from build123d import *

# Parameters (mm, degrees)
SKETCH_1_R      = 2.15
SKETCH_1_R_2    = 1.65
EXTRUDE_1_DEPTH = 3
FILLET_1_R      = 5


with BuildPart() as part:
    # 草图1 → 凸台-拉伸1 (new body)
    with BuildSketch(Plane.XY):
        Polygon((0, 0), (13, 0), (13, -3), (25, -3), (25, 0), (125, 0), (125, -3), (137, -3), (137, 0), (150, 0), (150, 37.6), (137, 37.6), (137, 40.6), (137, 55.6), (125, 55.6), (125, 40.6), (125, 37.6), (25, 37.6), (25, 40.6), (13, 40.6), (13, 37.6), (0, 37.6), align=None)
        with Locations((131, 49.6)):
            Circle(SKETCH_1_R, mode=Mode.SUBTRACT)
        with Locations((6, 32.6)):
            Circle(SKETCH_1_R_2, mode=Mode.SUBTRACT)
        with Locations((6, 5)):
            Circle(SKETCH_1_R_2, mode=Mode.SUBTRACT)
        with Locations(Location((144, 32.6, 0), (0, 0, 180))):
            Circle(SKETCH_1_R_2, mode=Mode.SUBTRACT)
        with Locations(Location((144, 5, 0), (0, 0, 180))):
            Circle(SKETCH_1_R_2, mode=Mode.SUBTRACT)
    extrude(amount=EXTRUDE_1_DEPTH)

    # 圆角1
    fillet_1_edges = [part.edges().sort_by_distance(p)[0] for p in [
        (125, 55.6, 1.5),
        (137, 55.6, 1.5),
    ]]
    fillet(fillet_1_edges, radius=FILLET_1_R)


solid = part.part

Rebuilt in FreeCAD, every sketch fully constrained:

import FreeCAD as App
import Part
import Sketcher

V = App.Vector


def edges_at(feature, points):
    """Names of the edges that pass closest to the given points."""
    edges = feature.Shape.Edges
    near = lambda p: min(range(len(edges)), key=lambda i: edges[i].distToShape(Part.Vertex(*p))[0])
    return sorted({f"Edge{near(p) + 1}" for p in points})

doc = App.newDocument("Part")
body = doc.addObject("PartDesign::Body", "Body")

sketch1 = body.newObject("Sketcher::SketchObject", "Sketch")
sketch1.AttachmentSupport = (doc.getObject("XY_Plane"), [""])
sketch1.MapMode = "FlatFace"
sketch1.addGeometry([
    Part.LineSegment(V(0, 0, 0), V(13, 0, 0)),
    Part.LineSegment(V(13, 0, 0), V(13, -3, 0)),
    Part.LineSegment(V(13, -3, 0), V(25, -3, 0)),
    Part.LineSegment(V(25, -3, 0), V(25, 0, 0)),
    Part.LineSegment(V(25, 0, 0), V(125, 0, 0)),
    Part.LineSegment(V(125, 0, 0), V(125, -3, 0)),
    Part.LineSegment(V(125, -3, 0), V(137, -3, 0)),
    Part.LineSegment(V(137, -3, 0), V(137, 0, 0)),
    Part.LineSegment(V(137, 0, 0), V(150, 0, 0)),
    Part.LineSegment(V(150, 0, 0), V(150, 37.6, 0)),
    Part.LineSegment(V(150, 37.6, 0), V(137, 37.6, 0)),
    Part.LineSegment(V(137, 37.6, 0), V(137, 55.6, 0)),
    Part.LineSegment(V(137, 55.6, 0), V(125, 55.6, 0)),
    Part.LineSegment(V(125, 55.6, 0), V(125, 37.6, 0)),
    Part.LineSegment(V(125, 37.6, 0), V(25, 37.6, 0)),
    Part.LineSegment(V(25, 37.6, 0), V(25, 40.6, 0)),
    Part.LineSegment(V(25, 40.6, 0), V(13, 40.6, 0)),
    Part.LineSegment(V(13, 40.6, 0), V(13, 37.6, 0)),
    Part.LineSegment(V(13, 37.6, 0), V(0, 37.6, 0)),
    Part.LineSegment(V(0, 37.6, 0), V(0, 0, 0)),
    Part.Circle(V(6, 5, 0), V(0, 0, 1), 1.6),
    Part.Circle(V(144, 5, 0), V(0, 0, 1), 1.6),
    Part.Circle(V(6, 32.6, 0), V(0, 0, 1), 1.6),
    Part.Circle(V(144, 32.6, 0), V(0, 0, 1), 1.6),
    Part.Circle(V(131, 49.6, 0), V(0, 0, 1), 2.1),
], False)
sketch1.addConstraint([
    Sketcher.Constraint("Coincident", 0, 2, 1, 1),
    Sketcher.Constraint("Coincident", 1, 2, 2, 1),
    Sketcher.Constraint("Coincident", 2, 2, 3, 1),
    Sketcher.Constraint("Coincident", 3, 2, 4, 1),
    Sketcher.Constraint("Coincident", 4, 2, 5, 1),
    Sketcher.Constraint("Coincident", 5, 2, 6, 1),
    Sketcher.Constraint("Coincident", 6, 2, 7, 1),
    Sketcher.Constraint("Coincident", 7, 2, 8, 1),
    Sketcher.Constraint("Coincident", 8, 2, 9, 1),
    Sketcher.Constraint("Coincident", 9, 2, 10, 1),
    Sketcher.Constraint("Coincident", 10, 2, 11, 1),
    Sketcher.Constraint("Coincident", 11, 2, 12, 1),
    Sketcher.Constraint("Coincident", 12, 2, 13, 1),
    Sketcher.Constraint("Coincident", 13, 2, 14, 1),
    Sketcher.Constraint("Coincident", 14, 2, 15, 1),
    Sketcher.Constraint("Coincident", 15, 2, 16, 1),
    Sketcher.Constraint("Coincident", 16, 2, 17, 1),
    Sketcher.Constraint("Coincident", 17, 2, 18, 1),
    Sketcher.Constraint("Coincident", 18, 2, 19, 1),
    Sketcher.Constraint("Coincident", 19, 2, 0, 1),
    Sketcher.Constraint("Horizontal", 0),
    Sketcher.Constraint("Vertical", 1),
    Sketcher.Constraint("Horizontal", 2),
    Sketcher.Constraint("Vertical", 3),
    Sketcher.Constraint("Horizontal", 4),
    Sketcher.Constraint("Vertical", 5),
    Sketcher.Constraint("Horizontal", 6),
    Sketcher.Constraint("Vertical", 7),
    Sketcher.Constraint("Horizontal", 8),
    Sketcher.Constraint("Vertical", 9),
    Sketcher.Constraint("Horizontal", 10),
    Sketcher.Constraint("Vertical", 11),
    Sketcher.Constraint("Horizontal", 12),
    Sketcher.Constraint("Vertical", 13),
    Sketcher.Constraint("Horizontal", 14),
    Sketcher.Constraint("Vertical", 15),
    Sketcher.Constraint("Horizontal", 16),
    Sketcher.Constraint("Vertical", 17),
    Sketcher.Constraint("Horizontal", 18),
    Sketcher.Constraint("Vertical", 19),
    Sketcher.Constraint("Coincident", 19, 2, -1, 1),
    Sketcher.Constraint("Equal", 20, 21),
    Sketcher.Constraint("Equal", 21, 22),
    Sketcher.Constraint("Equal", 22, 23),
    Sketcher.Constraint("PointOnObject", 3, 2, -1),
    Sketcher.Constraint("PointOnObject", 7, 2, -1),
    Sketcher.Constraint("Horizontal", 20, 3, 21, 3),
    Sketcher.Constraint("Horizontal", 22, 3, 23, 3),
    Sketcher.Constraint("Horizontal", 2, 2, 5, 2),
    Sketcher.Constraint("Horizontal", 10, 2, 13, 2),
    Sketcher.Constraint("Horizontal", 14, 2, 17, 2),
    Sketcher.Constraint("Vertical", 20, 3, 22, 3),
    Sketcher.Constraint("Vertical", 21, 3, 23, 3),
    Sketcher.Constraint("Vertical", 7, 2, 10, 2),
    Sketcher.Constraint("Vertical", 5, 2, 12, 2),
    Sketcher.Constraint("Vertical", 3, 2, 14, 2),
    Sketcher.Constraint("Vertical", 1, 2, 16, 2),
    Sketcher.Constraint("Equal", 2, 6),
    Sketcher.Constraint("Equal", 0, 8),
    Sketcher.Constraint("Equal", 7, 15),
    Sketcher.Constraint("Diameter", 20, 3.3),
    Sketcher.Constraint("Diameter", 24, 4.3),
    Sketcher.Constraint("DistanceX", 0, 1, 0, 2, 13.0),
    Sketcher.Constraint("DistanceX", 2, 1, 2, 2, 12.0),
    Sketcher.Constraint("DistanceX", 4, 1, 4, 2, 100.0),
    Sketcher.Constraint("DistanceY", 1, 2, 1, 1, 3.0),
    Sketcher.Constraint("DistanceY", 11, 1, 11, 2, 18.0),
    Sketcher.Constraint("DistanceY", 9, 1, 9, 2, 37.6),
    Sketcher.Constraint("DistanceX", -1, 1, 20, 3, 6.0),
    Sketcher.Constraint("DistanceY", -1, 1, 20, 3, 5.0),
    Sketcher.Constraint("DistanceX", -1, 1, 21, 3, 144.0),
    Sketcher.Constraint("DistanceX", -1, 1, 24, 3, 131.0),
    Sketcher.Constraint("DistanceY", 23, 3, 24, 3, 17.0),
    Sketcher.Constraint("DistanceY", 23, 3, 9, 2, 5.0),
])
pad1 = body.newObject("PartDesign::Pad", "Pad")
pad1.Profile = sketch1
pad1.Length = 3
doc.recompute()

fillet = body.newObject("PartDesign::Fillet", "Fillet")
fillet.Base = (pad1, edges_at(pad1, [(125, 55.6, 1.5), (137, 55.6, 1.5)]))
fillet.Radius = 5

doc.recompute()
